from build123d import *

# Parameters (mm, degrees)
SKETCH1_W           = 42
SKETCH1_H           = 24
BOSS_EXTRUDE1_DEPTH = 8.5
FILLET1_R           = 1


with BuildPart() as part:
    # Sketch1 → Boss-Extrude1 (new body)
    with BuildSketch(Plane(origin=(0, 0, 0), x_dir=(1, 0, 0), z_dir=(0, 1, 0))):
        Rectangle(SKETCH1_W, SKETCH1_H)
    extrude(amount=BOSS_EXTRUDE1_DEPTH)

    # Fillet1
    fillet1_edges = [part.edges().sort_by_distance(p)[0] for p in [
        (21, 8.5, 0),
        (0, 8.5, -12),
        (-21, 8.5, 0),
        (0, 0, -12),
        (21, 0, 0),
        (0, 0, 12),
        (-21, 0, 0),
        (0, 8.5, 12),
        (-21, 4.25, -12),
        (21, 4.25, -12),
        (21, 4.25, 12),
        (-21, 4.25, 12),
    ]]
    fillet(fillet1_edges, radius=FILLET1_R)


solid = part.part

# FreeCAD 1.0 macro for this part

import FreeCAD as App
import Part
import Sketcher
Q = App.Units.Quantity


def add_polygon(sketch, points):
    """Adds a closed chain of lines whose ends are joined by coincident constraints."""
    first, n = sketch.GeometryCount, len(points)
    for a, b in zip(points, points[1:] + points[:1]):
        sketch.addGeometry(Part.LineSegment(App.Vector(*a, 0), App.Vector(*b, 0)), False)
    for i in range(n):
        sketch.addConstraint(Sketcher.Constraint("Coincident", first + i, 2, first + (i + 1) % n, 1))

doc = App.newDocument("Part")
body = doc.addObject("PartDesign::Body", "Body")

# Sketch on XZ plane
sketch1 = body.newObject("Sketcher::SketchObject", "Sketch")
sketch1.AttachmentSupport = (doc.getObject("XZ_Plane"), [""])
sketch1.MapMode = "FlatFace"
add_polygon(sketch1, [(-21, -12), (-21, 12), (21, 12), (21, -12)])  # lines 0-3
sketch1.addConstraint([
    Sketcher.Constraint("Vertical", 0),
    Sketcher.Constraint("Horizontal", 1),
    Sketcher.Constraint("Vertical", 2),
    Sketcher.Constraint("Horizontal", 3),
    Sketcher.Constraint("Symmetric", 0, 2, 2, 2, -1, 1),
    Sketcher.Constraint("DistanceX", 1, 1, 1, 2, Q("42 mm")),
    Sketcher.Constraint("DistanceY", 0, 1, 0, 2, Q("24 mm")),
])
pad1 = body.newObject("PartDesign::Pad", "Pad")
pad1.Profile = sketch1
pad1.Length = 8.5
pad1.Reversed = True
doc.recompute()

fillet = body.newObject("PartDesign::Fillet", "Fillet")
fillet.Base = (pad1, ["Edge1"])
fillet.UseAllEdges = True
fillet.Radius = 1

doc.recompute()
